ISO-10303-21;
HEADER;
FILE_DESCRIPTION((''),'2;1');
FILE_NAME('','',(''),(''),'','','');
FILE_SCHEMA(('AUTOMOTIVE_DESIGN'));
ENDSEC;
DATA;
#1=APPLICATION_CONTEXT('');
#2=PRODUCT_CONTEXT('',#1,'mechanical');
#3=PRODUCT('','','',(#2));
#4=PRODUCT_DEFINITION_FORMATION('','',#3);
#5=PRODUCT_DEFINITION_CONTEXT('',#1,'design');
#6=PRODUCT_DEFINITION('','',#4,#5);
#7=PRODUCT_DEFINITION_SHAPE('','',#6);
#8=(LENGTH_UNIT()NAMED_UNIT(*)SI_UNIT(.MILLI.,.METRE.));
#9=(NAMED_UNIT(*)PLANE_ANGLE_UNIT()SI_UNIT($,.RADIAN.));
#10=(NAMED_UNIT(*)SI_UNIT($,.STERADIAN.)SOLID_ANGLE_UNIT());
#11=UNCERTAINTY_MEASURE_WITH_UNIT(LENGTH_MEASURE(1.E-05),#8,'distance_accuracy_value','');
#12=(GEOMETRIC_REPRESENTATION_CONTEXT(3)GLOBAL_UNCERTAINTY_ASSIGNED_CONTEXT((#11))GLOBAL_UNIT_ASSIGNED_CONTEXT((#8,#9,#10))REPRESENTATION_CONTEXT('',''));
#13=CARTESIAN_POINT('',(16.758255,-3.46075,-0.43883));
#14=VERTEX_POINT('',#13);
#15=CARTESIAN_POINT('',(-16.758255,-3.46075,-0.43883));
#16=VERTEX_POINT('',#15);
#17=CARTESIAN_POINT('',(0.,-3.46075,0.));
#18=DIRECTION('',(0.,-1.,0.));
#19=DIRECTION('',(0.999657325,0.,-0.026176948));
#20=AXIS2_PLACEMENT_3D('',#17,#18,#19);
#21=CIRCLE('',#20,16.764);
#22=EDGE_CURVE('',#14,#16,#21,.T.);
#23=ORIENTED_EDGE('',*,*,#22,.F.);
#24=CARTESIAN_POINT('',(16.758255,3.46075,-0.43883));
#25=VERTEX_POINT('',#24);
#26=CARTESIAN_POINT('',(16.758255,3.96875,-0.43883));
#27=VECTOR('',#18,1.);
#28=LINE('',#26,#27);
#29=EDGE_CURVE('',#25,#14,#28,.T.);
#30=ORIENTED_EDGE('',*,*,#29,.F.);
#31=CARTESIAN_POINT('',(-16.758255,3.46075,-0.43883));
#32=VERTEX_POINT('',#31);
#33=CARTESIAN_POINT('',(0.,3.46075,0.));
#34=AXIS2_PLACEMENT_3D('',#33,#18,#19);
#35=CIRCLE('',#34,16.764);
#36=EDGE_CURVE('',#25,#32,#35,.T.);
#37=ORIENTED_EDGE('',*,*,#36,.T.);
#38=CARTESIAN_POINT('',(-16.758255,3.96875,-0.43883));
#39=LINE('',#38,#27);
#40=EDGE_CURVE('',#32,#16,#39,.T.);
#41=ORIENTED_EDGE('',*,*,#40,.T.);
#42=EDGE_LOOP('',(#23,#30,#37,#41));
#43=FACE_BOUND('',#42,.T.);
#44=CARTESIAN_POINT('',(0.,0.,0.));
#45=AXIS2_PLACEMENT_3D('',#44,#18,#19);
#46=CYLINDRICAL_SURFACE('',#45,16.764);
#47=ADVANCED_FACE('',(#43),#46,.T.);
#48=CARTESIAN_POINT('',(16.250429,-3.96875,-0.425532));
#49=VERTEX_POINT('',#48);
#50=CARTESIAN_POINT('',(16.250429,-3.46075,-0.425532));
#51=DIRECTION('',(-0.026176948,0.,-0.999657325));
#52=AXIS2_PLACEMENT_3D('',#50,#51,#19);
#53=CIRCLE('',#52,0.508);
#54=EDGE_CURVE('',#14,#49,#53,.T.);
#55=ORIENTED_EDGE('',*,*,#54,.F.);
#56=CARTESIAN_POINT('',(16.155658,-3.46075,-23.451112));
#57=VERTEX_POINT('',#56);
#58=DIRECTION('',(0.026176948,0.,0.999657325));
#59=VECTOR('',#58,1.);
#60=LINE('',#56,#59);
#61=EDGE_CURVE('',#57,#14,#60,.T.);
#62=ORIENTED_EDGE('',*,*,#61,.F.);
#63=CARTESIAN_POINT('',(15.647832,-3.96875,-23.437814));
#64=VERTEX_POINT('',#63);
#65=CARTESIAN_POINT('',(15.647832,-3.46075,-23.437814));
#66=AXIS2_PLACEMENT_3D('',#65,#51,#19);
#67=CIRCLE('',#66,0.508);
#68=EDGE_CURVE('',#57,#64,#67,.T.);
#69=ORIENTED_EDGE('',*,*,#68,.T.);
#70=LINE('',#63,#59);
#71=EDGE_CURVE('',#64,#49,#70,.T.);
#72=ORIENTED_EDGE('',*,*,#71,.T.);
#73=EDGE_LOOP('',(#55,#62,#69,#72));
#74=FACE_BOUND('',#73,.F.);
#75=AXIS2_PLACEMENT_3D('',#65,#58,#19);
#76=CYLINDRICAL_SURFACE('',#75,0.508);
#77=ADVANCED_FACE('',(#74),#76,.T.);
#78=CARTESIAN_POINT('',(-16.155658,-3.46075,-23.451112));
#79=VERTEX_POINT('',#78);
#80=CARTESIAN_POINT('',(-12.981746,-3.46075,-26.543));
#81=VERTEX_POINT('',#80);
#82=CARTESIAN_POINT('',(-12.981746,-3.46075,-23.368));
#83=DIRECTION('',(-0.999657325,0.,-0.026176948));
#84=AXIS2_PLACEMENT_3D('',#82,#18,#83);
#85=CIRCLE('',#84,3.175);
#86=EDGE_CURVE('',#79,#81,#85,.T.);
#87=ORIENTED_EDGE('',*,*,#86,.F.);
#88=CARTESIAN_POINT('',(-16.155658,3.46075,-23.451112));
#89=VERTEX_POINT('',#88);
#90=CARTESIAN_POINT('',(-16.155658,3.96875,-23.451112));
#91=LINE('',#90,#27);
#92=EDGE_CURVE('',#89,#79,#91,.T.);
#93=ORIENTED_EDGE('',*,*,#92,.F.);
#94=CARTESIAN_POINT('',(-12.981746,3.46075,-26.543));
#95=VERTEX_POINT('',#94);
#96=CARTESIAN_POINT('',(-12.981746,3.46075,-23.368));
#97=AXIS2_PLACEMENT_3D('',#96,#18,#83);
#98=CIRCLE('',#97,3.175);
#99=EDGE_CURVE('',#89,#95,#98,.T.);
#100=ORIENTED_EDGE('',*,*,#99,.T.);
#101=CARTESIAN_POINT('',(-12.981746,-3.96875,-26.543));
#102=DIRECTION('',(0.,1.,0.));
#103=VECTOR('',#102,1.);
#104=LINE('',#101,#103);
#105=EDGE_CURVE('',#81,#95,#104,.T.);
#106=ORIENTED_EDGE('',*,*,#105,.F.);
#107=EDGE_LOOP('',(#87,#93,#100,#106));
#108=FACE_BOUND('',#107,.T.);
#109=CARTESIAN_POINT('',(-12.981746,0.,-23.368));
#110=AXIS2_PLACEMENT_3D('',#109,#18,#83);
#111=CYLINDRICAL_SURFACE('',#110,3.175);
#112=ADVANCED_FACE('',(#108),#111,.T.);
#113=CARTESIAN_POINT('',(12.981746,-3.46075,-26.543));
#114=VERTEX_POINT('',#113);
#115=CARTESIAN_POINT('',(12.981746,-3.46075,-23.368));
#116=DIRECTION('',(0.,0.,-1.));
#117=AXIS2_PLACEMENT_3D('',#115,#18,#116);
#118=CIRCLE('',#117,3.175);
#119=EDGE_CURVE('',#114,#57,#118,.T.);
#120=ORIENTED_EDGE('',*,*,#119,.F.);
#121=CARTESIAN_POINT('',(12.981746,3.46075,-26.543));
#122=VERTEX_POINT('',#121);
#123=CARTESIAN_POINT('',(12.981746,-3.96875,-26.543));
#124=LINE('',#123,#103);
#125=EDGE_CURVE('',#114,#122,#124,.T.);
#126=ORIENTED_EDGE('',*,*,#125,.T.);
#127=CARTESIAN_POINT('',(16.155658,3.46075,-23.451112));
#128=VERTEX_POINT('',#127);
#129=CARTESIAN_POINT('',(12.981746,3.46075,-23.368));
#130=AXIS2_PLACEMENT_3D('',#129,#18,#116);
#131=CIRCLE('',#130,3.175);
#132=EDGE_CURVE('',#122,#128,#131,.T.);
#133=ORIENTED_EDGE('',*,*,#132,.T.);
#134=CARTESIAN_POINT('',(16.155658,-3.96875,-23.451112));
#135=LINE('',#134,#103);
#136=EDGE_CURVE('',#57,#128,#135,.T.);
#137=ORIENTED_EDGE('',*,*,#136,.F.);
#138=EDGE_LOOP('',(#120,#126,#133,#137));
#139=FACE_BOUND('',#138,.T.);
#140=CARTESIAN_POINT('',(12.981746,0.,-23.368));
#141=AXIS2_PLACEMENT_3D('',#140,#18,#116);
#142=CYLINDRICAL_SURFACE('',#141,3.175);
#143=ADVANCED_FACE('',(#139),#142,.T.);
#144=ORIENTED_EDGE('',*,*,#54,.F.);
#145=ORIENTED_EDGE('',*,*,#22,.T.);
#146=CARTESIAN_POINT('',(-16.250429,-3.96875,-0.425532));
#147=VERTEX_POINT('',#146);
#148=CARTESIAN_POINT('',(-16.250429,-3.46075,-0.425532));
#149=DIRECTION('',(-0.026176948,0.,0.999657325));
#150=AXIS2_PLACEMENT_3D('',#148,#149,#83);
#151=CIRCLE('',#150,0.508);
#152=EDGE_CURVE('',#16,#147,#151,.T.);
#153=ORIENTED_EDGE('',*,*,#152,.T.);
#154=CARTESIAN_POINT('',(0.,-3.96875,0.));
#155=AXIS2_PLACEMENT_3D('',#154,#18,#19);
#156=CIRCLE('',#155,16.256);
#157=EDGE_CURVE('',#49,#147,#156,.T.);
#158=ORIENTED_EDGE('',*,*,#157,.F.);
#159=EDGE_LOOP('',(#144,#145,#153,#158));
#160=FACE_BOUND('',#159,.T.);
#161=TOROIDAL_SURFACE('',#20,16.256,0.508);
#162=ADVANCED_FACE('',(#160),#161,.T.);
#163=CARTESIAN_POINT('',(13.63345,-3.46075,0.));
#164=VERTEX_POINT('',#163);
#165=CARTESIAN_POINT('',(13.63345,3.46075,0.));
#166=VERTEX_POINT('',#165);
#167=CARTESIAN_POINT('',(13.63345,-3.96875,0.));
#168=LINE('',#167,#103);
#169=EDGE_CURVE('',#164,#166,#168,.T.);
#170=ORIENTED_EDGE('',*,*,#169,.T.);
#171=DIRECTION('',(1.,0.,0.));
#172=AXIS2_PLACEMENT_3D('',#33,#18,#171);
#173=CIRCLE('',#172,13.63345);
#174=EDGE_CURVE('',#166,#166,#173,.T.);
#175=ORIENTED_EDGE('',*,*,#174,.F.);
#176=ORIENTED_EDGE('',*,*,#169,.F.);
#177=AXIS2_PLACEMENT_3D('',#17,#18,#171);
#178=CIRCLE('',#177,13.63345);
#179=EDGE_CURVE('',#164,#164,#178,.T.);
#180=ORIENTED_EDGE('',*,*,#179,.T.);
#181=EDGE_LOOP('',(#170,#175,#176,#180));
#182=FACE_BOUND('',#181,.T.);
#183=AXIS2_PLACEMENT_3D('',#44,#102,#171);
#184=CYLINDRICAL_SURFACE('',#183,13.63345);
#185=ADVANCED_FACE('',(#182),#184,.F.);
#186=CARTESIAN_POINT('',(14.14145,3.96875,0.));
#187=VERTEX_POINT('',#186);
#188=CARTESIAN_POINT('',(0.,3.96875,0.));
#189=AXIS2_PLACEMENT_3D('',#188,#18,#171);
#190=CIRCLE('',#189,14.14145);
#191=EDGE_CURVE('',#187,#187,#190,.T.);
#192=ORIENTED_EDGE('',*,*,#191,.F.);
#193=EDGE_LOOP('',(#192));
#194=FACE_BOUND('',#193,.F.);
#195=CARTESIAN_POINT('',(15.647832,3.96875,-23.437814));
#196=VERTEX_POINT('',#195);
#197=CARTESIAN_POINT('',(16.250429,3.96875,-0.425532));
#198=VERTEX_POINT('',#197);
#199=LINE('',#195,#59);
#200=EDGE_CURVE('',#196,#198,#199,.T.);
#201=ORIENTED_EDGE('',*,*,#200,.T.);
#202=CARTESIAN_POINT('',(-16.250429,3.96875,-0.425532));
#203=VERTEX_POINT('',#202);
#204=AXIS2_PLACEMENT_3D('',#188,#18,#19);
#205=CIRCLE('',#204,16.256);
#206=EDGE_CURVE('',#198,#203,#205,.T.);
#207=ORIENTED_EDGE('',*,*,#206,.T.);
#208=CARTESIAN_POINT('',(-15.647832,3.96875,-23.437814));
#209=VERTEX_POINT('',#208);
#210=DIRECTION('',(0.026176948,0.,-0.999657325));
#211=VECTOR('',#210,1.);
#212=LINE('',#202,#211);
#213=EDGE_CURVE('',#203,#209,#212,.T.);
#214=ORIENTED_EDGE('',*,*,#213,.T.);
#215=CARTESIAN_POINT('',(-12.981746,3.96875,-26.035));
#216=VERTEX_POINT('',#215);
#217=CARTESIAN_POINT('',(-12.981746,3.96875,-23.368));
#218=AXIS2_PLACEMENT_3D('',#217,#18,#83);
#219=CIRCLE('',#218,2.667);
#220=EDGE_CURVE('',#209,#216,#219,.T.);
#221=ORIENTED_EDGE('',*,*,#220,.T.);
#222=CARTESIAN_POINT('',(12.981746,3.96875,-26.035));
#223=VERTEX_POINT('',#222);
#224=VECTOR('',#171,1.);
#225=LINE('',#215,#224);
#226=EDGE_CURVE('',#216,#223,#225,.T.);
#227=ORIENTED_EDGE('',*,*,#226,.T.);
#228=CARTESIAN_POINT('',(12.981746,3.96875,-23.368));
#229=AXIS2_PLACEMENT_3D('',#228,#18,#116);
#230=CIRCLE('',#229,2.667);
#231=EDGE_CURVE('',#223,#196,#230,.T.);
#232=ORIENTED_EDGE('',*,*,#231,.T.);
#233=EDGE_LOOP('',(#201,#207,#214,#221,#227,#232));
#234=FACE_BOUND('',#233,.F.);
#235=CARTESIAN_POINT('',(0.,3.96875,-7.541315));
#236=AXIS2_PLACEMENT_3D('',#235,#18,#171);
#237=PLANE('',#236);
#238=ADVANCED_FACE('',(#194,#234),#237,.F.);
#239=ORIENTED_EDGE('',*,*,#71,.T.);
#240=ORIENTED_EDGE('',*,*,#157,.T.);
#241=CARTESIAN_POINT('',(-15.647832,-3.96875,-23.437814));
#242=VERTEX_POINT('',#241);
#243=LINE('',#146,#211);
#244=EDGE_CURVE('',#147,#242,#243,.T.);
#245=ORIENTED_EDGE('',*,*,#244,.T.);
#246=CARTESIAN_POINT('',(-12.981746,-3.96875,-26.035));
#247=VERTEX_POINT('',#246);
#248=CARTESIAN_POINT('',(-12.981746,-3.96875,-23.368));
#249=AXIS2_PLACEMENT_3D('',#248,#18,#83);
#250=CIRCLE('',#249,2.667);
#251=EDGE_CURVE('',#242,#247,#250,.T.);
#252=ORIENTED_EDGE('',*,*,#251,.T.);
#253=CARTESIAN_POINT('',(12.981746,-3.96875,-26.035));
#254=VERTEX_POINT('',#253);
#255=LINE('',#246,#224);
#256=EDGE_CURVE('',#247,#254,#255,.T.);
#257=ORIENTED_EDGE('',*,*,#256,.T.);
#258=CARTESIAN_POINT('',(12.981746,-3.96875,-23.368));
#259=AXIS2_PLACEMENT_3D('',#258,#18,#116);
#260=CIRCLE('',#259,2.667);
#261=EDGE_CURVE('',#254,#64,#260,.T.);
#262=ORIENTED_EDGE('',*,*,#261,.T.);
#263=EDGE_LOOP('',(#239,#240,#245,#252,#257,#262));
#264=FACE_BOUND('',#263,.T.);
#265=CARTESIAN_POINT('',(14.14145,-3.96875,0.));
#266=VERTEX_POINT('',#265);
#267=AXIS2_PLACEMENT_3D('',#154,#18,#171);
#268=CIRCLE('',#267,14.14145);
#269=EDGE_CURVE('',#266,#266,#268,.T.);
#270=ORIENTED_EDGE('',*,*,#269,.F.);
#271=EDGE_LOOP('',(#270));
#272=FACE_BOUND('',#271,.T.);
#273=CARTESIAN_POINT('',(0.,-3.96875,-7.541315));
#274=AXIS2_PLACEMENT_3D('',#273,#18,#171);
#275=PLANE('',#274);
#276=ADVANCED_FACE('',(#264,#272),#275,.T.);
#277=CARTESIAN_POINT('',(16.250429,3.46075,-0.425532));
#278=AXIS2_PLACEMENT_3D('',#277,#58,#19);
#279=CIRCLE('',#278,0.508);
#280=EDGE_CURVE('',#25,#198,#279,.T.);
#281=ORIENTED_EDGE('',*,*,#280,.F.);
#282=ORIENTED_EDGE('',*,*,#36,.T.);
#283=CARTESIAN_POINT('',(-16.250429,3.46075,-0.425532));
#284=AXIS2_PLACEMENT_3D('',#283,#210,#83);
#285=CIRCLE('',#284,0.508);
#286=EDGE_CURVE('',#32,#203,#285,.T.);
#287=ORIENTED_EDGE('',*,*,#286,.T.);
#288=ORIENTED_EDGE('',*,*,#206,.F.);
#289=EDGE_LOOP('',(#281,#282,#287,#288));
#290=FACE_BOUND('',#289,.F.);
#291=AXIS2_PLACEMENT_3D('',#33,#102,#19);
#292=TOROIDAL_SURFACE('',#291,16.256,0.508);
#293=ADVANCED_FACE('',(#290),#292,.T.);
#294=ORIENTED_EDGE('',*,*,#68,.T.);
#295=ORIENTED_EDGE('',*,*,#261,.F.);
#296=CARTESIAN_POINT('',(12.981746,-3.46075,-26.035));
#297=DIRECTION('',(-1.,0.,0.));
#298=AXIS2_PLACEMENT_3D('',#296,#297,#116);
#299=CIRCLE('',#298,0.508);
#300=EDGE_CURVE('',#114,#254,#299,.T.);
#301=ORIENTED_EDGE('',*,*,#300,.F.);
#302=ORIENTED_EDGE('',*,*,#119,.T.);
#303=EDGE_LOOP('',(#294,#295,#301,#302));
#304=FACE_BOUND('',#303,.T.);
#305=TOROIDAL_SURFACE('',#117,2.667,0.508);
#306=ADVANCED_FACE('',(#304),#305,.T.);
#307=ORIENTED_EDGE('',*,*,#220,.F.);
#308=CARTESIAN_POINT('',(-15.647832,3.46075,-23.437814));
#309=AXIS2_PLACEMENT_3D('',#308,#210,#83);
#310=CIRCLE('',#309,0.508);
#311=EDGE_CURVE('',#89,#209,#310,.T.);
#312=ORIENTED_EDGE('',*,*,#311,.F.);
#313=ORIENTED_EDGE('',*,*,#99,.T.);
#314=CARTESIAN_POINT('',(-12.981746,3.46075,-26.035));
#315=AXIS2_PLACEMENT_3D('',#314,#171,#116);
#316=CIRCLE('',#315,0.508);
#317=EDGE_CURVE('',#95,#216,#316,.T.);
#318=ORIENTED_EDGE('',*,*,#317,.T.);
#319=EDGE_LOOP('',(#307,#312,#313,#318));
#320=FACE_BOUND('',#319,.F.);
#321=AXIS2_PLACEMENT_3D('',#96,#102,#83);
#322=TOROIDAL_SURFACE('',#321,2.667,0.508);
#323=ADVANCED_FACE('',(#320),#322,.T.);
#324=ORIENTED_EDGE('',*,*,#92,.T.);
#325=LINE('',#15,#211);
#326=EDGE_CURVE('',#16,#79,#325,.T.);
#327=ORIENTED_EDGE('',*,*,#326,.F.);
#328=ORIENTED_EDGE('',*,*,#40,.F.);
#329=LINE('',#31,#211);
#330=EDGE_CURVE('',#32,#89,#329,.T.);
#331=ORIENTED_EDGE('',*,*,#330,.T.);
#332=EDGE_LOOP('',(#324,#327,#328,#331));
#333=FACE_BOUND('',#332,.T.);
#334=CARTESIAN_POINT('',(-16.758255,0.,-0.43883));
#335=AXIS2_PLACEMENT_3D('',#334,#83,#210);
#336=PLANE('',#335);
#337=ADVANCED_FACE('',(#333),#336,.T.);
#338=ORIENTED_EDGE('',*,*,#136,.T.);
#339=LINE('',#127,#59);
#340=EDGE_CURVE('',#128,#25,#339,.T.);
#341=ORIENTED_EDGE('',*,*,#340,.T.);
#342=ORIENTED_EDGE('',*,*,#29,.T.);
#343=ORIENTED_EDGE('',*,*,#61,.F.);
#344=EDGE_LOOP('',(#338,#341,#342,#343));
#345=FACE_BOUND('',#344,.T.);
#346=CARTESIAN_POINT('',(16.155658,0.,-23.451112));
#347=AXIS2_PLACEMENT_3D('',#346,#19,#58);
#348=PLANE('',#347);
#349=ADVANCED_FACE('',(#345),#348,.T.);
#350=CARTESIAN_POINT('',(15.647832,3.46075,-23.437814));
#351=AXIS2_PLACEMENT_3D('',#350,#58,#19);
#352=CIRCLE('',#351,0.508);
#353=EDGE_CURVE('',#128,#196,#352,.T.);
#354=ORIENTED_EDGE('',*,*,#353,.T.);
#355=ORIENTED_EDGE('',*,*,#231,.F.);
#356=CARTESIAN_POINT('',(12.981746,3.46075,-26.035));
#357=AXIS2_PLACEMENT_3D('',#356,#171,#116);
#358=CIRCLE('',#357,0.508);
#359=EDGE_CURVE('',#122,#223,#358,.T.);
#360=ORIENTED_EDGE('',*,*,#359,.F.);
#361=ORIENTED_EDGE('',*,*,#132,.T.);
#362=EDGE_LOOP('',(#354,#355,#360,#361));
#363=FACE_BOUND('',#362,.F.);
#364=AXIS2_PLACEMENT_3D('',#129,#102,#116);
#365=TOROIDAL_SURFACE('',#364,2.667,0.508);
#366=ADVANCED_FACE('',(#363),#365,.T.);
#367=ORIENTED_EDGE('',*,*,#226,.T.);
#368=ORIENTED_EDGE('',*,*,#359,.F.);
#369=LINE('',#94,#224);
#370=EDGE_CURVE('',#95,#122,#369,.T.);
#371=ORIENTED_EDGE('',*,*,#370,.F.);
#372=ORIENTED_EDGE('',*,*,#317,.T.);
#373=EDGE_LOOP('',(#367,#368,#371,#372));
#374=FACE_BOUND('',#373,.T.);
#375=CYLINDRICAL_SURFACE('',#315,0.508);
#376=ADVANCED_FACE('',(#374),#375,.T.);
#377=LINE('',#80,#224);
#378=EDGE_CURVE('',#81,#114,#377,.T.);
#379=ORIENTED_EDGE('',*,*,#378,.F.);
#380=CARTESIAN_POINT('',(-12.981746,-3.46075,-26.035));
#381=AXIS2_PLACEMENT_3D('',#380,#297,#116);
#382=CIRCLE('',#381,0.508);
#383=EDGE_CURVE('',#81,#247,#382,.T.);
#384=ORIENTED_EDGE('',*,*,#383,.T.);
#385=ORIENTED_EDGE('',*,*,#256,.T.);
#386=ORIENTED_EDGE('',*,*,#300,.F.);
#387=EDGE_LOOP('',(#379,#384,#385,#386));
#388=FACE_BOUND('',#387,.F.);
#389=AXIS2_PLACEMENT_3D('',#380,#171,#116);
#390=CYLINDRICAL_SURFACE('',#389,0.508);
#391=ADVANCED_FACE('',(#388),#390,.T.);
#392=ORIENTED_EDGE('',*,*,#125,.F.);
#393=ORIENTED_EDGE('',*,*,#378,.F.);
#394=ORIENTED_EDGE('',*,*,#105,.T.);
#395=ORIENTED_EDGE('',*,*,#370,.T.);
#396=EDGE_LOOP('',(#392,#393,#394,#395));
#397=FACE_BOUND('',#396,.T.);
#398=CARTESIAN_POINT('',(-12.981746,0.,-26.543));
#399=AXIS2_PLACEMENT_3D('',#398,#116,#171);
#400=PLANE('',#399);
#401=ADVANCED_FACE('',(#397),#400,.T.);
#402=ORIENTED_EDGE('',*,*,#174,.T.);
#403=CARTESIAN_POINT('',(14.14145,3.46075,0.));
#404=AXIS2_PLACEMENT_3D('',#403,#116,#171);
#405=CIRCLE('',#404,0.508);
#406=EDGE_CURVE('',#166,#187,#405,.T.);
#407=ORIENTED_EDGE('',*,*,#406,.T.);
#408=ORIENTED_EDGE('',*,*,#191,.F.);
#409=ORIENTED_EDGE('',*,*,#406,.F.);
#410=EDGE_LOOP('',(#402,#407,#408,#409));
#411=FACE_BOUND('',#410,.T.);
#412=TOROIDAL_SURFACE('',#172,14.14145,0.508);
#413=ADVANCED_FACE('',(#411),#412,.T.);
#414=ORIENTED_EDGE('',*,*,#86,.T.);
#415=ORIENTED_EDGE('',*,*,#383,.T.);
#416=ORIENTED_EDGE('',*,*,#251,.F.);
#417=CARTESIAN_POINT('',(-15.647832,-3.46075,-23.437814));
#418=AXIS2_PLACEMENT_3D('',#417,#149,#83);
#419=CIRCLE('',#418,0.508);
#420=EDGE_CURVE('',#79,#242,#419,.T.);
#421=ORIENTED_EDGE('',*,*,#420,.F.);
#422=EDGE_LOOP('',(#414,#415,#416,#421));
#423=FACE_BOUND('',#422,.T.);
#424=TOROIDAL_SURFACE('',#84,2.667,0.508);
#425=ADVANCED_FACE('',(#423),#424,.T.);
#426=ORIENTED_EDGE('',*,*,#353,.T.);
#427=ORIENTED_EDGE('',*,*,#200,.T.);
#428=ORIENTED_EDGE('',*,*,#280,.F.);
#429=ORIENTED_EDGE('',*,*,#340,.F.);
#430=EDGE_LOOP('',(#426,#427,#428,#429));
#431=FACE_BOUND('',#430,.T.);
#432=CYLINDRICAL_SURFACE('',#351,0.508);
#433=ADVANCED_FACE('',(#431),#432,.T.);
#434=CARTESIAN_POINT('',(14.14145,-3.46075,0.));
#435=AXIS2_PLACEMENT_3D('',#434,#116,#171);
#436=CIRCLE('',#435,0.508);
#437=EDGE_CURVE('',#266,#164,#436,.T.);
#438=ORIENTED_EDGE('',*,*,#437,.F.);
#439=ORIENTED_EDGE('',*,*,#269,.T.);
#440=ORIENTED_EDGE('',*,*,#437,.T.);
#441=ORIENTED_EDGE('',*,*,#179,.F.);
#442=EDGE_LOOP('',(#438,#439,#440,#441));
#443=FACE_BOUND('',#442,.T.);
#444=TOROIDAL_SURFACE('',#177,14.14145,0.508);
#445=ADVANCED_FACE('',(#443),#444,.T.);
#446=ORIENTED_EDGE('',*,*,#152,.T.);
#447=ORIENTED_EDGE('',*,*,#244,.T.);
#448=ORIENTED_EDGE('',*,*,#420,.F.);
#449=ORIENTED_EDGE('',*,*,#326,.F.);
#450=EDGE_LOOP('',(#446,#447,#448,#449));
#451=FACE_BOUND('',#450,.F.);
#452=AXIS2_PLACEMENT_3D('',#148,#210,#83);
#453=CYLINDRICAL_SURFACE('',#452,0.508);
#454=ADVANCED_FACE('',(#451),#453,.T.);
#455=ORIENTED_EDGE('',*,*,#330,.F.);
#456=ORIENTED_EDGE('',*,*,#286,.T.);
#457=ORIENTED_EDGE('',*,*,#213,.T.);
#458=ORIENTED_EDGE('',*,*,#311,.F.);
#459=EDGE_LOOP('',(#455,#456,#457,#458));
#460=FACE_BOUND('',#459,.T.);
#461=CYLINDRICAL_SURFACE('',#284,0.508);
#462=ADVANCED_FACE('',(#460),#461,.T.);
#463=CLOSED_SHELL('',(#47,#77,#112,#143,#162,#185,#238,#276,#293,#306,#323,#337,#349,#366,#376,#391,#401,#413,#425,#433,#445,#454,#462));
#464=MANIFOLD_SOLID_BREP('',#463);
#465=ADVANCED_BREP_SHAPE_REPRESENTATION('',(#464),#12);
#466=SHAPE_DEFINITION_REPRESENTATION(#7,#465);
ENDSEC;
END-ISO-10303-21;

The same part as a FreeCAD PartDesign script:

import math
import FreeCAD as App
import Part
import Sketcher

V = App.Vector
Q = App.Units.Quantity


def edges_at(feature, points):
    """Names of the edges that pass closest to the given points."""
    edges = feature.Shape.Edges
    near = lambda p: min(range(len(edges)), key=lambda i: edges[i].distToShape(Part.Vertex(*p))[0])
    return sorted({f"Edge{near(p) + 1}" for p in points})

doc = App.newDocument("Part")
body = doc.addObject("PartDesign::Body", "Body")

# Sketch on XZ plane
sketch1 = body.newObject("Sketcher::SketchObject", "Sketch")
sketch1.AttachmentSupport = (doc.getObject("XZ_Plane"), [""])
sketch1.MapMode = "FlatFace"
sketch1.addGeometry(Part.LineSegment(V(16.2, -23.5, 0), V(16.8, -0.4, 0)), False)
sketch1.addGeometry(Part.ArcOfCircle(Part.Circle(V(0, 0, 0), V(0, 0, 1), 16.8), math.radians(-1), math.radians(181)), False)
sketch1.addGeometry(Part.LineSegment(V(-16.8, -0.4, 0), V(-16.2, -23.5, 0)), False)
sketch1.addGeometry(Part.ArcOfCircle(Part.Circle(V(-13, -23.4, 0), V(0, 0, 1), 3.2), math.radians(-178), math.radians(-90)), False)
sketch1.addGeometry(Part.LineSegment(V(-13, -26.5, 0), V(13, -26.5, 0)), False)
sketch1.addGeometry(Part.ArcOfCircle(Part.Circle(V(13, -23.4, 0), V(0, 0, 1), 3.2), math.radians(-90), math.radians(-2)), False)
sketch1.addGeometry(Part.Circle(V(0, 0, 0), V(0, 0, 1), 13.6), False)
sketch1.addConstraint(Sketcher.Constraint("Tangent", 0, 2, 1, 1))
sketch1.addConstraint(Sketcher.Constraint("Tangent", 1, 2, 2, 1))
sketch1.addConstraint(Sketcher.Constraint("Tangent", 2, 2, 3, 1))
sketch1.addConstraint(Sketcher.Constraint("Tangent", 3, 2, 4, 1))
sketch1.addConstraint(Sketcher.Constraint("Tangent", 4, 2, 5, 1))
sketch1.addConstraint(Sketcher.Constraint("Tangent", 5, 2, 0, 1))
sketch1.addConstraint(Sketcher.Constraint("Horizontal", 4))
sketch1.addConstraint(Sketcher.Constraint("Coincident", 1, 3, -1, 1))
sketch1.addConstraint(Sketcher.Constraint("Coincident", 6, 3, -1, 1))
sketch1.addConstraint(Sketcher.Constraint("Equal", 3, 5))
sketch1.addConstraint(Sketcher.Constraint("Horizontal", 0, 2, 1, 2))
sketch1.addConstraint(Sketcher.Constraint("Radius", 1, Q("0.66 in")))
sketch1.addConstraint(Sketcher.Constraint("Radius", 3, Q("0.125 in")))
sketch1.addConstraint(Sketcher.Constraint("Diameter", 6, Q("1.0735 in")))
sketch1.addConstraint(Sketcher.Constraint("Angle", 0, Q("88.5 deg")))
sketch1.addConstraint(Sketcher.Constraint("DistanceY", 3, 3, -1, 1, Q("0.92 in")))
pad1 = body.newObject("PartDesign::Pad", "Pad")
pad1.Profile = sketch1
pad1.Length = Q("0.3125 in")
pad1.Midplane = True
doc.recompute()

fillet = body.newObject("PartDesign::Fillet", "Fillet")
fillet.Base = (pad1, edges_at(pad1, [
    (15.197, -3.969, -25.642),
    (16.457, -3.969, -11.945),
    (0, -3.969, 16.764),
    (-16.457, -3.969, -11.945),
    (-15.197, -3.969, -25.642),
    (0, -3.969, -26.543),
    (-13.633, -3.969, 0),
    (15.197, 3.969, -25.642),
    (16.457, 3.969, -11.945),
    (0, 3.969, 16.764),
    (-16.457, 3.969, -11.945),
    (-15.197, 3.969, -25.642),
    (0, 3.969, -26.543),
    (-13.633, 3.969, 0),
]))
fillet.Radius = Q("0.02 in")

doc.recompute()
